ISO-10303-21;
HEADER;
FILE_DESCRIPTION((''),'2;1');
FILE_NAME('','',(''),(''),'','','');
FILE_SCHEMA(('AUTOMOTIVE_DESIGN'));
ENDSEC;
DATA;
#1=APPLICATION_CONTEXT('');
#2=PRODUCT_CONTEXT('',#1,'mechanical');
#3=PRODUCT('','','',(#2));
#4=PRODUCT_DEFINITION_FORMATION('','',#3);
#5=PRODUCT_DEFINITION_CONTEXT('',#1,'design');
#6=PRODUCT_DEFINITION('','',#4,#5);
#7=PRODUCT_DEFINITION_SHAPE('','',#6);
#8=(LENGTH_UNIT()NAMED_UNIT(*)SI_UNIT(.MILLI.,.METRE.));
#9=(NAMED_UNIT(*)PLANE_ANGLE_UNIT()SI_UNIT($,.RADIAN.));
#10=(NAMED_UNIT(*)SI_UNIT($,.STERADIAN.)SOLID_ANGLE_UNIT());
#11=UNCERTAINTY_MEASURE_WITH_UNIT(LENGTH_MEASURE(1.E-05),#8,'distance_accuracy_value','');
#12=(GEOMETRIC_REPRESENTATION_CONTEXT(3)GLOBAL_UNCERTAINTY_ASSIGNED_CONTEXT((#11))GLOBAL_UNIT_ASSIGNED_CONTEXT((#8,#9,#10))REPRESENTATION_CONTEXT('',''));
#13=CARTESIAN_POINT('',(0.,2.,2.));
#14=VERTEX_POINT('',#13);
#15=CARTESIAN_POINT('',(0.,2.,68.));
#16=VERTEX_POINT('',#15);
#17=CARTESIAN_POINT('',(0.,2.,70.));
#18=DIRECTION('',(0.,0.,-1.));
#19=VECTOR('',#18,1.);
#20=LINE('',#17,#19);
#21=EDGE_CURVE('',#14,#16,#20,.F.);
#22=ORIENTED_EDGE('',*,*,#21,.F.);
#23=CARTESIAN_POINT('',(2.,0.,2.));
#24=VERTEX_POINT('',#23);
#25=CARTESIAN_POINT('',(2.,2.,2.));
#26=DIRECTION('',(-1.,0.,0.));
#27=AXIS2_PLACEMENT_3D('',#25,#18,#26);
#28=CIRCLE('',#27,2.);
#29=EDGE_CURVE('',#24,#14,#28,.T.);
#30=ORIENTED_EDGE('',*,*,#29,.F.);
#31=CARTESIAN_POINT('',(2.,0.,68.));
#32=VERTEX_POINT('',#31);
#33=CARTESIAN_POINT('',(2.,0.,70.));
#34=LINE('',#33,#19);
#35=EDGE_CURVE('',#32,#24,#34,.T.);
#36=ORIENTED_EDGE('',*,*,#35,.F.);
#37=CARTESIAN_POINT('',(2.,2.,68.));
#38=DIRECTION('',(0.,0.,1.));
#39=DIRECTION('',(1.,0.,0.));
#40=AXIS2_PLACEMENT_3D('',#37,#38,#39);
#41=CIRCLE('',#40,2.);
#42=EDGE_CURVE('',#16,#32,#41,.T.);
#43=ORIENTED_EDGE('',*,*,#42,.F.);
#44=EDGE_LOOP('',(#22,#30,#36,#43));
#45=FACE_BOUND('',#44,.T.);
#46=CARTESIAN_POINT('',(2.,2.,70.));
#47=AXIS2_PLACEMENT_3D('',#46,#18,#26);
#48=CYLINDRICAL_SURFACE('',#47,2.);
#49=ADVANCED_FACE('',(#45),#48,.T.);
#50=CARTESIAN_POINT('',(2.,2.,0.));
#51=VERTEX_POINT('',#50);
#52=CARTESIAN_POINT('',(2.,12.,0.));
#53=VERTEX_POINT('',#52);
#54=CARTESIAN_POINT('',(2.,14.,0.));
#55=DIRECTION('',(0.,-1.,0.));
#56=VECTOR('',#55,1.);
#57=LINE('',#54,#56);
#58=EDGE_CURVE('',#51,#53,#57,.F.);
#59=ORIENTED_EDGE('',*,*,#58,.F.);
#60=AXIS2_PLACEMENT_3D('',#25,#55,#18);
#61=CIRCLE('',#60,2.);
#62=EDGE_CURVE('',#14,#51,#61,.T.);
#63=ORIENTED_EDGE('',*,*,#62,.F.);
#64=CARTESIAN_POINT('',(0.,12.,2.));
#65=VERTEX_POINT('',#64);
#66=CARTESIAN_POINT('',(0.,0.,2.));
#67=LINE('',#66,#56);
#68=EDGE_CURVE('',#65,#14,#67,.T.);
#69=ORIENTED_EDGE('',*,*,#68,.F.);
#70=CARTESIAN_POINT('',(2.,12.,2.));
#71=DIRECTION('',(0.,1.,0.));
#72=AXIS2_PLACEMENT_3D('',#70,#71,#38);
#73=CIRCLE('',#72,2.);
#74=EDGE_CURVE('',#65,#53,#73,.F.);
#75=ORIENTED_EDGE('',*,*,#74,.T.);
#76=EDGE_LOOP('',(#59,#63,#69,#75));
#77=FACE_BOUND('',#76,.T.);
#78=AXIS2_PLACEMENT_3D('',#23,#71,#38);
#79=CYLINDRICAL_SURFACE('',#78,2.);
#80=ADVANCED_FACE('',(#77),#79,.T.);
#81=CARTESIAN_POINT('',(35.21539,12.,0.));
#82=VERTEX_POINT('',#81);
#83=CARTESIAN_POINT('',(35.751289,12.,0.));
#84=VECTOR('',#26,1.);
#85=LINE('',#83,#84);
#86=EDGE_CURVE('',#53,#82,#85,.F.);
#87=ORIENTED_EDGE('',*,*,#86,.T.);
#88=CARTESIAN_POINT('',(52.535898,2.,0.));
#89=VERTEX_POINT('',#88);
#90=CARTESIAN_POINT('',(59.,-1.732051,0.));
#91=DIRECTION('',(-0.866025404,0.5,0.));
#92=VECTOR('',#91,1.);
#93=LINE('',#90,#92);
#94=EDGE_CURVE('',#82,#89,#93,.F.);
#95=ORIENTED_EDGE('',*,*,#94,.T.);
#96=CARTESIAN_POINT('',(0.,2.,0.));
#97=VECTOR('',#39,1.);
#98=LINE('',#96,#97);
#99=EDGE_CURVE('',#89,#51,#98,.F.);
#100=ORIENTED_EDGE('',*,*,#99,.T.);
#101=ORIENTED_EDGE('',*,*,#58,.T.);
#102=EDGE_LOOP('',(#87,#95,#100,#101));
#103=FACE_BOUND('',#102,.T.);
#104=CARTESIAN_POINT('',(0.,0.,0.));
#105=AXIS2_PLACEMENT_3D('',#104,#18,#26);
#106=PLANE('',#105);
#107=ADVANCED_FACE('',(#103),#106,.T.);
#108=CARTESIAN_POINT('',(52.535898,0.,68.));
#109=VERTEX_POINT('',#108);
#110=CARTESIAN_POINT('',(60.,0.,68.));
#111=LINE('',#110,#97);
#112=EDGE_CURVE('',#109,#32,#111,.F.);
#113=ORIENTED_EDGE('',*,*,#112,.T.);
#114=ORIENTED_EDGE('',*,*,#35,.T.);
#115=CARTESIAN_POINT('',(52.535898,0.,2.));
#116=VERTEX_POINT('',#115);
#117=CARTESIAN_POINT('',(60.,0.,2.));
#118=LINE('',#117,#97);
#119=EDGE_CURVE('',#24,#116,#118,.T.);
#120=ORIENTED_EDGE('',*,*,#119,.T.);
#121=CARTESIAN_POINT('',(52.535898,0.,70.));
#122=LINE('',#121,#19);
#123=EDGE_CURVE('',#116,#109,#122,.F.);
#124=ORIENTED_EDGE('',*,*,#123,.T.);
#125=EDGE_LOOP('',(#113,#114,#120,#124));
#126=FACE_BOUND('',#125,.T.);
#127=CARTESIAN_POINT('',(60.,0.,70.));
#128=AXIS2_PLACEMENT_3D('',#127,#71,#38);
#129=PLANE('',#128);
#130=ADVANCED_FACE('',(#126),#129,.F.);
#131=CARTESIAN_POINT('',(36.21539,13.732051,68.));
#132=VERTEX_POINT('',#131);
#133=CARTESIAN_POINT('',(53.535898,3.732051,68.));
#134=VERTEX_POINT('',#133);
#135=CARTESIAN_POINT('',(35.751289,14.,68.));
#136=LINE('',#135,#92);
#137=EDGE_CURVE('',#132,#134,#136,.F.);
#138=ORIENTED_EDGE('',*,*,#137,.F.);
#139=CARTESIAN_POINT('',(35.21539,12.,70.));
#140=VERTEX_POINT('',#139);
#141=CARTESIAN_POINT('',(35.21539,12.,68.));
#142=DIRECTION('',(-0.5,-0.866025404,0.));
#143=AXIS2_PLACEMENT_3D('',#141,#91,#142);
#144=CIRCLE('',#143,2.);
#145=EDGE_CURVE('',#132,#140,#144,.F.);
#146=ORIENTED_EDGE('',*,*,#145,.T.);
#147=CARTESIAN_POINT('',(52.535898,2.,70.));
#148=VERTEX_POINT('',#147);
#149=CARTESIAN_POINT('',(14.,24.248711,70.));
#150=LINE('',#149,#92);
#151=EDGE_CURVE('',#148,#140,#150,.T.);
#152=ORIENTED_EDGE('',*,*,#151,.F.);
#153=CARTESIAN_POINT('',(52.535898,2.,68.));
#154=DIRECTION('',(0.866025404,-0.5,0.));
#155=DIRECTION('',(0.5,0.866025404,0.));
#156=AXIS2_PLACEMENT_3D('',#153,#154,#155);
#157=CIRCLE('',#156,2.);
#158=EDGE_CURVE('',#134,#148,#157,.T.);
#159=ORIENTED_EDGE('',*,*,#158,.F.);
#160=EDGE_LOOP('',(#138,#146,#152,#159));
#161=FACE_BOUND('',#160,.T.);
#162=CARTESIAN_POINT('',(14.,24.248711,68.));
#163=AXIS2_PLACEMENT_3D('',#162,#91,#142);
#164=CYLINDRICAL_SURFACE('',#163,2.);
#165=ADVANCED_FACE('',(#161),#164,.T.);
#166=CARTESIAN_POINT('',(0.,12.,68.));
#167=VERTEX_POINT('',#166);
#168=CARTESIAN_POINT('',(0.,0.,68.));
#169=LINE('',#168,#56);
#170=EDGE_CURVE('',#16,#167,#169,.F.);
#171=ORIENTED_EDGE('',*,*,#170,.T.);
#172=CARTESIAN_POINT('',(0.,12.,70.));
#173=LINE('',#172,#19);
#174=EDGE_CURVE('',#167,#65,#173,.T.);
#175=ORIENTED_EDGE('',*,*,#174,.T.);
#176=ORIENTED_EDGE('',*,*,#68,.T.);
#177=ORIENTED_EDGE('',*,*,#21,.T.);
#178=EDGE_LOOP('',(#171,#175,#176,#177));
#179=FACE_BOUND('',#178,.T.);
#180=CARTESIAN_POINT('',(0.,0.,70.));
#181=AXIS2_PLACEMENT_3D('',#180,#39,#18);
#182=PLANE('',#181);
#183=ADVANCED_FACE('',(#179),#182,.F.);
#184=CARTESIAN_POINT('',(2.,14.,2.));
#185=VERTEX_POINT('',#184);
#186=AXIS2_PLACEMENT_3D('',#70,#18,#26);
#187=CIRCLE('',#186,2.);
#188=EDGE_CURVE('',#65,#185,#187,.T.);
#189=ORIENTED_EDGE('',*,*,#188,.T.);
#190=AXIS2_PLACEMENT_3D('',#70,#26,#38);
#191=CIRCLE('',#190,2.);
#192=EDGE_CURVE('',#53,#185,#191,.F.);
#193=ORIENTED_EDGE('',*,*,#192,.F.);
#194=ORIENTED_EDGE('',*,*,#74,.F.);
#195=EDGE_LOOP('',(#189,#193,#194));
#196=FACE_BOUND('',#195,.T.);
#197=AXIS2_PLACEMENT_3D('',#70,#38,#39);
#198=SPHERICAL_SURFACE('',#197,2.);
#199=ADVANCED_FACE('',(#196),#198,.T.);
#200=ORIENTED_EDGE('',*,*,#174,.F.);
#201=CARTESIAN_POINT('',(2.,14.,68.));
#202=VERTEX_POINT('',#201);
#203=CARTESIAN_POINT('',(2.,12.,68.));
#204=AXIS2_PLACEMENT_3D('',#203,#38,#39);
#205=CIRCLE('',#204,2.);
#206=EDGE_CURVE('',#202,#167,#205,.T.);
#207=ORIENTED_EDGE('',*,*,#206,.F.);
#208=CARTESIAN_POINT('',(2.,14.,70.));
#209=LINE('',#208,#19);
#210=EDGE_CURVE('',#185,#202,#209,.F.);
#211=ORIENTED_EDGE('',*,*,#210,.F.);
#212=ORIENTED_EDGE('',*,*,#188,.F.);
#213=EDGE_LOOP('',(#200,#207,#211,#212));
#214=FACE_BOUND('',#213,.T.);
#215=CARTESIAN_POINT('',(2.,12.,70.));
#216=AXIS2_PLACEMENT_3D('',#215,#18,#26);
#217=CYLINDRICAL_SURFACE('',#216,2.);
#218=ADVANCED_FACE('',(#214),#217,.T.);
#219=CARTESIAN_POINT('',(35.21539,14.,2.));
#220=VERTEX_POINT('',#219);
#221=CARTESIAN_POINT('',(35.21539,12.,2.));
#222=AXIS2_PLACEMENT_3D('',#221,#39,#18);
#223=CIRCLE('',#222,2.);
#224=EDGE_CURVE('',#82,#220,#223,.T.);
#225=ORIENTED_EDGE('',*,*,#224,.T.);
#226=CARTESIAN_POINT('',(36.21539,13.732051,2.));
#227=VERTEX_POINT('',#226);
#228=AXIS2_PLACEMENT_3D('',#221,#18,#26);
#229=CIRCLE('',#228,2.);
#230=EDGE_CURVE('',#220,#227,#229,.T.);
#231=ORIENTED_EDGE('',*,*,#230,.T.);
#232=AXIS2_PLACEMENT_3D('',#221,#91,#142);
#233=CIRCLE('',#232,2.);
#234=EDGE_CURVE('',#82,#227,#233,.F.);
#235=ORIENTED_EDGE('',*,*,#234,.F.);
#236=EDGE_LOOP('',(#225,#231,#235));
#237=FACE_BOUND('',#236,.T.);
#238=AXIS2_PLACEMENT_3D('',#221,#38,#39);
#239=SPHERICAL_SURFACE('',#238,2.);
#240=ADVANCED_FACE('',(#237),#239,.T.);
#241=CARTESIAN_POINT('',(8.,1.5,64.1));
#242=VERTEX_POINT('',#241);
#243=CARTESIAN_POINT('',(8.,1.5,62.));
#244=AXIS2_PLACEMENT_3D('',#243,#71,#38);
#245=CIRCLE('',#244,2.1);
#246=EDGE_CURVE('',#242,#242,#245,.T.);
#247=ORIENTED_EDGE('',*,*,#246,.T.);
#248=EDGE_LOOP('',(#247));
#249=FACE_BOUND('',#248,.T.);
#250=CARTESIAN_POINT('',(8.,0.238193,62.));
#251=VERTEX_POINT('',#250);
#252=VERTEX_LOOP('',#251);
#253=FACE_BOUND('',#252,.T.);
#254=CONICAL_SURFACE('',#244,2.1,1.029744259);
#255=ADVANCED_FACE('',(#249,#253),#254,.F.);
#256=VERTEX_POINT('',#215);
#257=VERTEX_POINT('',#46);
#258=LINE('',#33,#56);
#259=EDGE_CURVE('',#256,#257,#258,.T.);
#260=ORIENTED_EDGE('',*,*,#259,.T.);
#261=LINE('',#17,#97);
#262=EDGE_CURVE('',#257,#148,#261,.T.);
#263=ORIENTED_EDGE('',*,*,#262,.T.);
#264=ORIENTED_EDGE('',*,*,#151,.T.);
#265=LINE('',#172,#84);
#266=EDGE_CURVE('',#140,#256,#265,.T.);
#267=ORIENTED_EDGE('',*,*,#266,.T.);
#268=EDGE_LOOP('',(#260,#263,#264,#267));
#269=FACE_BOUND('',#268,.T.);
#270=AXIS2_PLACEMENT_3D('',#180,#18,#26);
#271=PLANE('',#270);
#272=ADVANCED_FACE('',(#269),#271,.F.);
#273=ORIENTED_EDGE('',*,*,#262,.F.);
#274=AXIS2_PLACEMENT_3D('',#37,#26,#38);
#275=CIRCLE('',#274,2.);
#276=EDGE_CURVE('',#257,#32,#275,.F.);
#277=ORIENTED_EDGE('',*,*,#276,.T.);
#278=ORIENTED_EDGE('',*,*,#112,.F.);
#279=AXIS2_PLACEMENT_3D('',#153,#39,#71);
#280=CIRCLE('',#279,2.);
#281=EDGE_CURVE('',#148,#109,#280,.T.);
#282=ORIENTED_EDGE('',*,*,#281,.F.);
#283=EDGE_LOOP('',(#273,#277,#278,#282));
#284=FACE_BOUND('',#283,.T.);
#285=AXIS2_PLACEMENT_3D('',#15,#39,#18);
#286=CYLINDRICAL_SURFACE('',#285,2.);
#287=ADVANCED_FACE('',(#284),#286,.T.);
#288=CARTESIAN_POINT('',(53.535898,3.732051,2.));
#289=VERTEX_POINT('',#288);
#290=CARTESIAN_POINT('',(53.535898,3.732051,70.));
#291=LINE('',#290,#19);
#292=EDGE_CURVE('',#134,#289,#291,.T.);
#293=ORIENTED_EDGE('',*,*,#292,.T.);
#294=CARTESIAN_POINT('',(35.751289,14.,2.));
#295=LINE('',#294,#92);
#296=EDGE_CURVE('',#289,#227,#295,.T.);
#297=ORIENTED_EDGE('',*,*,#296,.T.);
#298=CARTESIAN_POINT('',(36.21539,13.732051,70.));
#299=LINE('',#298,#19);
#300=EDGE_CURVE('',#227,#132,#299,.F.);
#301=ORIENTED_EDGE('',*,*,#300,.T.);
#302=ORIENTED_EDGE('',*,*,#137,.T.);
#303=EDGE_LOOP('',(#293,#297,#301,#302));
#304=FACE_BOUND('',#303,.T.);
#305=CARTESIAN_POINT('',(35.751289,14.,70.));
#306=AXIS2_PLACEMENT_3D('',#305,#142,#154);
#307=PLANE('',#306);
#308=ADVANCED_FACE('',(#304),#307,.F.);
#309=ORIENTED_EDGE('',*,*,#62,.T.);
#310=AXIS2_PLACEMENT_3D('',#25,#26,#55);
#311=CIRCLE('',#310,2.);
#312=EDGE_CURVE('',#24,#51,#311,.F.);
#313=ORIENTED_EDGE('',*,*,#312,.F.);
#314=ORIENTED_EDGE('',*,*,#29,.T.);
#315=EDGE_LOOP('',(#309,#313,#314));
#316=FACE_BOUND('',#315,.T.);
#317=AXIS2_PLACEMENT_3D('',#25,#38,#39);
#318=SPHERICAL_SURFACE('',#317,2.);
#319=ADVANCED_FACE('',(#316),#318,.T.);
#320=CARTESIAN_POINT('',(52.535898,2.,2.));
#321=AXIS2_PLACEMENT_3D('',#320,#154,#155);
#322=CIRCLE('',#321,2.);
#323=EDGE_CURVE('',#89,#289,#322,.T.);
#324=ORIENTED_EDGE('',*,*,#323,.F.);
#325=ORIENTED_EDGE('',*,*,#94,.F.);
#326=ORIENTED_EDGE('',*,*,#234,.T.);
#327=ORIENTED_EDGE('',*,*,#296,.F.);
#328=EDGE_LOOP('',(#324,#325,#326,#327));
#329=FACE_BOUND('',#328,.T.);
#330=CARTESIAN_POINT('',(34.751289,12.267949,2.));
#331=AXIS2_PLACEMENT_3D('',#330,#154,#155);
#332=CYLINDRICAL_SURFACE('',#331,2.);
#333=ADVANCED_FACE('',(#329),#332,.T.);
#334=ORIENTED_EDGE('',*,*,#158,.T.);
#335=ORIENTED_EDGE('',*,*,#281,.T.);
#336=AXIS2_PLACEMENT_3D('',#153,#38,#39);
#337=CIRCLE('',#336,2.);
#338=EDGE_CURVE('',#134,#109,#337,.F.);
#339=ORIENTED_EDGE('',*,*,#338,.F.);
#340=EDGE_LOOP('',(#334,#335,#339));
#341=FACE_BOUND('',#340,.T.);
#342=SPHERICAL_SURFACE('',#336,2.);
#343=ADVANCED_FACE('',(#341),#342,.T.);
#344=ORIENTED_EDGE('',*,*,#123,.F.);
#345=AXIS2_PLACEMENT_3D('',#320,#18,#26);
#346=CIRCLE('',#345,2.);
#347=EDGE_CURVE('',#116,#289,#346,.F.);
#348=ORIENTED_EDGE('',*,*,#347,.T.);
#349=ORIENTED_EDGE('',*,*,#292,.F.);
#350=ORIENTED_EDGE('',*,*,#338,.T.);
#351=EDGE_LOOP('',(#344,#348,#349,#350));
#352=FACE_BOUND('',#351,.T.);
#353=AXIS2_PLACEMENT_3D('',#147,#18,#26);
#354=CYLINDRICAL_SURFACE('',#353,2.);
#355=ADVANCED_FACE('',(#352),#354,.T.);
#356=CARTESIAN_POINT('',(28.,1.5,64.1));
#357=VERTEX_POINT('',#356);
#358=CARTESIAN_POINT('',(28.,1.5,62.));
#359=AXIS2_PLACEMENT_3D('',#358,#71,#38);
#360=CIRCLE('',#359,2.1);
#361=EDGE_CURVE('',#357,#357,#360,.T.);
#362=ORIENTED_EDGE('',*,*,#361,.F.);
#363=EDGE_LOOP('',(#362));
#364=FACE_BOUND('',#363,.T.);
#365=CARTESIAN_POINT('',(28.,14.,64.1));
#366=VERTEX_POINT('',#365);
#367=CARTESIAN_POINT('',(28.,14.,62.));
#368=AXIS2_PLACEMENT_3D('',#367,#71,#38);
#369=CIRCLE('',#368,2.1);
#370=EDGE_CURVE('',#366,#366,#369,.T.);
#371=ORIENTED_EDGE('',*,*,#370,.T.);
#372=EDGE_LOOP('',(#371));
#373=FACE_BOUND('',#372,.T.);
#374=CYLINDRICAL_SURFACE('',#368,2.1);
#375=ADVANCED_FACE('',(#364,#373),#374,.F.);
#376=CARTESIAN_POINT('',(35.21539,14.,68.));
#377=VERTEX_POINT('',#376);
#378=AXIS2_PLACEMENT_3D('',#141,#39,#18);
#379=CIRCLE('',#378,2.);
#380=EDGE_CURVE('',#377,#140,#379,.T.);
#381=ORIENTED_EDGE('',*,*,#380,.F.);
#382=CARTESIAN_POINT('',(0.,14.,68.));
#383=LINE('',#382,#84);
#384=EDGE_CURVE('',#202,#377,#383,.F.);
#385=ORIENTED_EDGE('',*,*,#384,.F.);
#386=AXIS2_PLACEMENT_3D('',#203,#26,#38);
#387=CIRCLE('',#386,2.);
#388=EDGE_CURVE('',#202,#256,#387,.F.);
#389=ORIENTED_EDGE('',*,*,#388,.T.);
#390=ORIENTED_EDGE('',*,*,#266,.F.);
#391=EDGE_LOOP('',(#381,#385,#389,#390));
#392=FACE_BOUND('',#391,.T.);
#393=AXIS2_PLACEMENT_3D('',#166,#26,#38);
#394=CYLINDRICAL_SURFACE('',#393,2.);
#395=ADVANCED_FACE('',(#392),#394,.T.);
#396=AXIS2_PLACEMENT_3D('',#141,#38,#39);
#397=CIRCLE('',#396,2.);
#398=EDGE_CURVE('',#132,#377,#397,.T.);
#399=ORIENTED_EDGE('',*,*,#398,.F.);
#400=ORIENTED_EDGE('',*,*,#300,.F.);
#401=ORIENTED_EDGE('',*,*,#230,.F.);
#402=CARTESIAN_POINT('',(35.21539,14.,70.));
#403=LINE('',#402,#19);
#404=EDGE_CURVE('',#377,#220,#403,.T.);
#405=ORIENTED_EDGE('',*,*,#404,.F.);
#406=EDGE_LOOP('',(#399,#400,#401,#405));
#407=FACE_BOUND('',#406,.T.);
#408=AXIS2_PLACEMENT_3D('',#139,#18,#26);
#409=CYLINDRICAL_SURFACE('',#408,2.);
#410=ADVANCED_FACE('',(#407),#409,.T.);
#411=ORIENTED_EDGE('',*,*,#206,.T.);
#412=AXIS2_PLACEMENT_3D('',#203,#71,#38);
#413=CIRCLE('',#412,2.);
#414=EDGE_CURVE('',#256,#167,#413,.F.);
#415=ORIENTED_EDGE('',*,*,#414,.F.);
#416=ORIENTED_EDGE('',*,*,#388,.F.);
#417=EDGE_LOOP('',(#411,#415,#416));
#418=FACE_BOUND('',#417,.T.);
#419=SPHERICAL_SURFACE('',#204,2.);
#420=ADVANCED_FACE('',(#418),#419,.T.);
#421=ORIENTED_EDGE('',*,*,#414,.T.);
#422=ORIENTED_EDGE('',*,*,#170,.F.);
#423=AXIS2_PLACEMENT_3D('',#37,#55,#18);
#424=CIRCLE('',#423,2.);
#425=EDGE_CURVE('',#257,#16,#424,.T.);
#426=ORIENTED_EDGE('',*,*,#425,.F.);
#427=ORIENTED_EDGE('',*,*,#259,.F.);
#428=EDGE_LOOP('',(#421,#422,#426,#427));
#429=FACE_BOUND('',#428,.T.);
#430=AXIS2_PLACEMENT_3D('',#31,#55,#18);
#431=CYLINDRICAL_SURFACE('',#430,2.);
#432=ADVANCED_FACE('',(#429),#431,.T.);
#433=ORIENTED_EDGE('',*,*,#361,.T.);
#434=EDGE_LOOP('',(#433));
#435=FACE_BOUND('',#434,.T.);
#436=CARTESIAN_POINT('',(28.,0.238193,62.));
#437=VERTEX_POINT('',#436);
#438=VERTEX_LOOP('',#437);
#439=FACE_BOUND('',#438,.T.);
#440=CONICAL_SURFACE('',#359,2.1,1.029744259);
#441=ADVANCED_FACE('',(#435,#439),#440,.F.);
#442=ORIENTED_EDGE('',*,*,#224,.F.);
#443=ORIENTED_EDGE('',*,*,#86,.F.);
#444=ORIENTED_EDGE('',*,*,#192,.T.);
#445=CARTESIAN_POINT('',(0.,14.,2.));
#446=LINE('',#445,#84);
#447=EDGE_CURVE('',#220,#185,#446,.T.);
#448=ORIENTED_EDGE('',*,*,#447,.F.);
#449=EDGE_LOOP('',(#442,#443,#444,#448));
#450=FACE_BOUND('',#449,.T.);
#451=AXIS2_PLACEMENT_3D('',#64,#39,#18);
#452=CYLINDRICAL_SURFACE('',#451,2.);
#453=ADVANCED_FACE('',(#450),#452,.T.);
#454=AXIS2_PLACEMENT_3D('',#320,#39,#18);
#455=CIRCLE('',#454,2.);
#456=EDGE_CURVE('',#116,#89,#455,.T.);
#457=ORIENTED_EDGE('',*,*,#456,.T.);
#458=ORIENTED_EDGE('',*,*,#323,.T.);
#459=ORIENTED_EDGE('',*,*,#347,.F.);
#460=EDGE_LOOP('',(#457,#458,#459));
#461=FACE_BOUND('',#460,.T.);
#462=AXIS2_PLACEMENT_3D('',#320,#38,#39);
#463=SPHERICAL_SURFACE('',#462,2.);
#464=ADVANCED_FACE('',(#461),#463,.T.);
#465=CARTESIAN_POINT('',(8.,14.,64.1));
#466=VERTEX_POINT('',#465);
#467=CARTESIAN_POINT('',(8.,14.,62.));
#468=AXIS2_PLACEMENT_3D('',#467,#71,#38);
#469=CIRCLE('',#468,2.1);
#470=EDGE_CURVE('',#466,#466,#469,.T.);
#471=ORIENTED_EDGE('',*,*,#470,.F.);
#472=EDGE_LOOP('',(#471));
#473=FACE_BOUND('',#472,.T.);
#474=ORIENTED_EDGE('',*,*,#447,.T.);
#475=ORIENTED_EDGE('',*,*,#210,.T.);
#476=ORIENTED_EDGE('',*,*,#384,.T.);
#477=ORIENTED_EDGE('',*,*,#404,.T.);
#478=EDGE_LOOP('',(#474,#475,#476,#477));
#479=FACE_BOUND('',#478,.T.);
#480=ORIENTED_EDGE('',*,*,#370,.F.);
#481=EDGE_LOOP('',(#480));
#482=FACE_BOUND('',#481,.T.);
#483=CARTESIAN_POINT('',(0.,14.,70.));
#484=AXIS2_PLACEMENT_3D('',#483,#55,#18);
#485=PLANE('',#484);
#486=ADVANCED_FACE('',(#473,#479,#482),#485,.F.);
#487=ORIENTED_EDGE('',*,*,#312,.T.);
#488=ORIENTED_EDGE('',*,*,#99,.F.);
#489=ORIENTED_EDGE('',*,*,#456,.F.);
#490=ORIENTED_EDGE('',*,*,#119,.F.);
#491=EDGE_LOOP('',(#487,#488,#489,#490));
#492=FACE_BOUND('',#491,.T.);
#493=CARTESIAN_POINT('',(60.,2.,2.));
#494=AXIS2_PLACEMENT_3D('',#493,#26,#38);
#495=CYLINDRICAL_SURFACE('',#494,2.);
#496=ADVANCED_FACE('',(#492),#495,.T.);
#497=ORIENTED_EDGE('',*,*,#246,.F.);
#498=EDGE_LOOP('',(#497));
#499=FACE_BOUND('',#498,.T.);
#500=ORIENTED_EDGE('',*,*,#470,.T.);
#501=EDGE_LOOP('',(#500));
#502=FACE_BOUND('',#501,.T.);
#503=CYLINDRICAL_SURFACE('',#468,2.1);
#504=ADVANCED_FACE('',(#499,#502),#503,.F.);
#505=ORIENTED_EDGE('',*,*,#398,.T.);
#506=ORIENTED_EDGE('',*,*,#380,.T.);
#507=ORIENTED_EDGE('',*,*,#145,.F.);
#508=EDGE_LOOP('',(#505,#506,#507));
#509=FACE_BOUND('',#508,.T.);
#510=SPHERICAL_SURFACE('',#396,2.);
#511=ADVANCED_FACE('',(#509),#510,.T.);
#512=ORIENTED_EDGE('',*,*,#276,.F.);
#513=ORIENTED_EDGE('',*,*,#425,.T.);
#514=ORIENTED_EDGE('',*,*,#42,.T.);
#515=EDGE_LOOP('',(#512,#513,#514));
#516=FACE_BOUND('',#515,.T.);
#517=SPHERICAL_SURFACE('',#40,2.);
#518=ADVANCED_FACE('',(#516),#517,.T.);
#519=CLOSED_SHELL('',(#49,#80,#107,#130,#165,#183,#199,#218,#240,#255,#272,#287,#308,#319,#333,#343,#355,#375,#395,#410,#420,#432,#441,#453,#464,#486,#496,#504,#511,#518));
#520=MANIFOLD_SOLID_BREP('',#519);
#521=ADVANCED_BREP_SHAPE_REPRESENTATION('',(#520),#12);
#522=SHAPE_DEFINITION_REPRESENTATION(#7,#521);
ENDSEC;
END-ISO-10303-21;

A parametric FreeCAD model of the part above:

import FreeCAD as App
import Part
import Sketcher

V = App.Vector
Q = App.Units.Quantity


def add_polygon(sketch, points):
    """Adds a closed chain of lines whose ends are joined by coincident constraints."""
    first, n = sketch.GeometryCount, len(points)
    for a, b in zip(points, points[1:] + points[:1]):
        sketch.addGeometry(Part.LineSegment(App.Vector(*a, 0), App.Vector(*b, 0)), False)
    for i in range(n):
        sketch.addConstraint(Sketcher.Constraint("Coincident", first + i, 2, first + (i + 1) % n, 1))

doc = App.newDocument("Part")
body = doc.addObject("PartDesign::Body", "Body")

# Sketch on XY plane
sketch1 = doc.addObject("Sketcher::SketchObject", "Sketch")
body.addObject(sketch1)
sketch1.AttachmentSupport = (doc.XY_Plane, [""])
sketch1.MapMode = "FlatFace"
add_polygon(sketch1, [(0, 14), (0, 0), (60, 0), (35.751289, 14)])  # lines 0-3
sketch1.addConstraint([
    Sketcher.Constraint("Vertical", 0),
    Sketcher.Constraint("Horizontal", 1),
    Sketcher.Constraint("Horizontal", 3),
    Sketcher.Constraint("Coincident", 0, 2, -1, 1),
    Sketcher.Constraint("DistanceX", 1, 1, 1, 2, 60.0),
    Sketcher.Constraint("DistanceY", 0, 2, 0, 1, 14.0),
    Sketcher.Constraint("Angle", 2, Q("150 deg")),
])
pad1 = doc.addObject("PartDesign::Pad", "Pad")
body.addObject(pad1)
pad1.Profile = sketch1
pad1.Length = 70
doc.recompute()

fillet = doc.addObject("PartDesign::Fillet", "Fillet")
body.addObject(fillet)
fillet.Base = (pad1, ["Edge1"])
fillet.UseAllEdges = True
fillet.Radius = 2

# Sketch on XZ plane
sketch2 = doc.addObject("Sketcher::SketchObject", "Sketch001")
body.addObject(sketch2)
sketch2.AttachmentSupport = (doc.XZ_Plane, [""])
sketch2.MapMode = "FlatFace"
sketch2.AttachmentOffset = App.Placement(V(0, 0, -14), App.Rotation())
sketch2.addGeometry([
    Part.Circle(V(8, 62, 0), V(0, 0, 1), 2.1),
    Part.Circle(V(28, 62, 0), V(0, 0, 1), 2.1),
], False)
sketch2.addConstraint([
    Sketcher.Constraint("Equal", 0, 1),
    Sketcher.Constraint("Horizontal", 0, 3, 1, 3),
    Sketcher.Constraint("Diameter", 0, 4.2),
    Sketcher.Constraint("DistanceX", -1, 1, 0, 3, 8.0),
    Sketcher.Constraint("DistanceY", -1, 1, 0, 3, 62.0),
    Sketcher.Constraint("DistanceX", -1, 1, 1, 3, 28.0),
])
doc.recompute()
hole = doc.addObject("PartDesign::Hole", "Hole")
body.addObject(hole)
hole.Profile = sketch2
hole.ThreadType = "None"
hole.Diameter = 4.2
hole.DepthType = "Dimension"
hole.Depth = 12.5
hole.DrillPoint = "Angled"
hole.DrillPointAngle = 118
hole.Reversed = True

doc.recompute()
